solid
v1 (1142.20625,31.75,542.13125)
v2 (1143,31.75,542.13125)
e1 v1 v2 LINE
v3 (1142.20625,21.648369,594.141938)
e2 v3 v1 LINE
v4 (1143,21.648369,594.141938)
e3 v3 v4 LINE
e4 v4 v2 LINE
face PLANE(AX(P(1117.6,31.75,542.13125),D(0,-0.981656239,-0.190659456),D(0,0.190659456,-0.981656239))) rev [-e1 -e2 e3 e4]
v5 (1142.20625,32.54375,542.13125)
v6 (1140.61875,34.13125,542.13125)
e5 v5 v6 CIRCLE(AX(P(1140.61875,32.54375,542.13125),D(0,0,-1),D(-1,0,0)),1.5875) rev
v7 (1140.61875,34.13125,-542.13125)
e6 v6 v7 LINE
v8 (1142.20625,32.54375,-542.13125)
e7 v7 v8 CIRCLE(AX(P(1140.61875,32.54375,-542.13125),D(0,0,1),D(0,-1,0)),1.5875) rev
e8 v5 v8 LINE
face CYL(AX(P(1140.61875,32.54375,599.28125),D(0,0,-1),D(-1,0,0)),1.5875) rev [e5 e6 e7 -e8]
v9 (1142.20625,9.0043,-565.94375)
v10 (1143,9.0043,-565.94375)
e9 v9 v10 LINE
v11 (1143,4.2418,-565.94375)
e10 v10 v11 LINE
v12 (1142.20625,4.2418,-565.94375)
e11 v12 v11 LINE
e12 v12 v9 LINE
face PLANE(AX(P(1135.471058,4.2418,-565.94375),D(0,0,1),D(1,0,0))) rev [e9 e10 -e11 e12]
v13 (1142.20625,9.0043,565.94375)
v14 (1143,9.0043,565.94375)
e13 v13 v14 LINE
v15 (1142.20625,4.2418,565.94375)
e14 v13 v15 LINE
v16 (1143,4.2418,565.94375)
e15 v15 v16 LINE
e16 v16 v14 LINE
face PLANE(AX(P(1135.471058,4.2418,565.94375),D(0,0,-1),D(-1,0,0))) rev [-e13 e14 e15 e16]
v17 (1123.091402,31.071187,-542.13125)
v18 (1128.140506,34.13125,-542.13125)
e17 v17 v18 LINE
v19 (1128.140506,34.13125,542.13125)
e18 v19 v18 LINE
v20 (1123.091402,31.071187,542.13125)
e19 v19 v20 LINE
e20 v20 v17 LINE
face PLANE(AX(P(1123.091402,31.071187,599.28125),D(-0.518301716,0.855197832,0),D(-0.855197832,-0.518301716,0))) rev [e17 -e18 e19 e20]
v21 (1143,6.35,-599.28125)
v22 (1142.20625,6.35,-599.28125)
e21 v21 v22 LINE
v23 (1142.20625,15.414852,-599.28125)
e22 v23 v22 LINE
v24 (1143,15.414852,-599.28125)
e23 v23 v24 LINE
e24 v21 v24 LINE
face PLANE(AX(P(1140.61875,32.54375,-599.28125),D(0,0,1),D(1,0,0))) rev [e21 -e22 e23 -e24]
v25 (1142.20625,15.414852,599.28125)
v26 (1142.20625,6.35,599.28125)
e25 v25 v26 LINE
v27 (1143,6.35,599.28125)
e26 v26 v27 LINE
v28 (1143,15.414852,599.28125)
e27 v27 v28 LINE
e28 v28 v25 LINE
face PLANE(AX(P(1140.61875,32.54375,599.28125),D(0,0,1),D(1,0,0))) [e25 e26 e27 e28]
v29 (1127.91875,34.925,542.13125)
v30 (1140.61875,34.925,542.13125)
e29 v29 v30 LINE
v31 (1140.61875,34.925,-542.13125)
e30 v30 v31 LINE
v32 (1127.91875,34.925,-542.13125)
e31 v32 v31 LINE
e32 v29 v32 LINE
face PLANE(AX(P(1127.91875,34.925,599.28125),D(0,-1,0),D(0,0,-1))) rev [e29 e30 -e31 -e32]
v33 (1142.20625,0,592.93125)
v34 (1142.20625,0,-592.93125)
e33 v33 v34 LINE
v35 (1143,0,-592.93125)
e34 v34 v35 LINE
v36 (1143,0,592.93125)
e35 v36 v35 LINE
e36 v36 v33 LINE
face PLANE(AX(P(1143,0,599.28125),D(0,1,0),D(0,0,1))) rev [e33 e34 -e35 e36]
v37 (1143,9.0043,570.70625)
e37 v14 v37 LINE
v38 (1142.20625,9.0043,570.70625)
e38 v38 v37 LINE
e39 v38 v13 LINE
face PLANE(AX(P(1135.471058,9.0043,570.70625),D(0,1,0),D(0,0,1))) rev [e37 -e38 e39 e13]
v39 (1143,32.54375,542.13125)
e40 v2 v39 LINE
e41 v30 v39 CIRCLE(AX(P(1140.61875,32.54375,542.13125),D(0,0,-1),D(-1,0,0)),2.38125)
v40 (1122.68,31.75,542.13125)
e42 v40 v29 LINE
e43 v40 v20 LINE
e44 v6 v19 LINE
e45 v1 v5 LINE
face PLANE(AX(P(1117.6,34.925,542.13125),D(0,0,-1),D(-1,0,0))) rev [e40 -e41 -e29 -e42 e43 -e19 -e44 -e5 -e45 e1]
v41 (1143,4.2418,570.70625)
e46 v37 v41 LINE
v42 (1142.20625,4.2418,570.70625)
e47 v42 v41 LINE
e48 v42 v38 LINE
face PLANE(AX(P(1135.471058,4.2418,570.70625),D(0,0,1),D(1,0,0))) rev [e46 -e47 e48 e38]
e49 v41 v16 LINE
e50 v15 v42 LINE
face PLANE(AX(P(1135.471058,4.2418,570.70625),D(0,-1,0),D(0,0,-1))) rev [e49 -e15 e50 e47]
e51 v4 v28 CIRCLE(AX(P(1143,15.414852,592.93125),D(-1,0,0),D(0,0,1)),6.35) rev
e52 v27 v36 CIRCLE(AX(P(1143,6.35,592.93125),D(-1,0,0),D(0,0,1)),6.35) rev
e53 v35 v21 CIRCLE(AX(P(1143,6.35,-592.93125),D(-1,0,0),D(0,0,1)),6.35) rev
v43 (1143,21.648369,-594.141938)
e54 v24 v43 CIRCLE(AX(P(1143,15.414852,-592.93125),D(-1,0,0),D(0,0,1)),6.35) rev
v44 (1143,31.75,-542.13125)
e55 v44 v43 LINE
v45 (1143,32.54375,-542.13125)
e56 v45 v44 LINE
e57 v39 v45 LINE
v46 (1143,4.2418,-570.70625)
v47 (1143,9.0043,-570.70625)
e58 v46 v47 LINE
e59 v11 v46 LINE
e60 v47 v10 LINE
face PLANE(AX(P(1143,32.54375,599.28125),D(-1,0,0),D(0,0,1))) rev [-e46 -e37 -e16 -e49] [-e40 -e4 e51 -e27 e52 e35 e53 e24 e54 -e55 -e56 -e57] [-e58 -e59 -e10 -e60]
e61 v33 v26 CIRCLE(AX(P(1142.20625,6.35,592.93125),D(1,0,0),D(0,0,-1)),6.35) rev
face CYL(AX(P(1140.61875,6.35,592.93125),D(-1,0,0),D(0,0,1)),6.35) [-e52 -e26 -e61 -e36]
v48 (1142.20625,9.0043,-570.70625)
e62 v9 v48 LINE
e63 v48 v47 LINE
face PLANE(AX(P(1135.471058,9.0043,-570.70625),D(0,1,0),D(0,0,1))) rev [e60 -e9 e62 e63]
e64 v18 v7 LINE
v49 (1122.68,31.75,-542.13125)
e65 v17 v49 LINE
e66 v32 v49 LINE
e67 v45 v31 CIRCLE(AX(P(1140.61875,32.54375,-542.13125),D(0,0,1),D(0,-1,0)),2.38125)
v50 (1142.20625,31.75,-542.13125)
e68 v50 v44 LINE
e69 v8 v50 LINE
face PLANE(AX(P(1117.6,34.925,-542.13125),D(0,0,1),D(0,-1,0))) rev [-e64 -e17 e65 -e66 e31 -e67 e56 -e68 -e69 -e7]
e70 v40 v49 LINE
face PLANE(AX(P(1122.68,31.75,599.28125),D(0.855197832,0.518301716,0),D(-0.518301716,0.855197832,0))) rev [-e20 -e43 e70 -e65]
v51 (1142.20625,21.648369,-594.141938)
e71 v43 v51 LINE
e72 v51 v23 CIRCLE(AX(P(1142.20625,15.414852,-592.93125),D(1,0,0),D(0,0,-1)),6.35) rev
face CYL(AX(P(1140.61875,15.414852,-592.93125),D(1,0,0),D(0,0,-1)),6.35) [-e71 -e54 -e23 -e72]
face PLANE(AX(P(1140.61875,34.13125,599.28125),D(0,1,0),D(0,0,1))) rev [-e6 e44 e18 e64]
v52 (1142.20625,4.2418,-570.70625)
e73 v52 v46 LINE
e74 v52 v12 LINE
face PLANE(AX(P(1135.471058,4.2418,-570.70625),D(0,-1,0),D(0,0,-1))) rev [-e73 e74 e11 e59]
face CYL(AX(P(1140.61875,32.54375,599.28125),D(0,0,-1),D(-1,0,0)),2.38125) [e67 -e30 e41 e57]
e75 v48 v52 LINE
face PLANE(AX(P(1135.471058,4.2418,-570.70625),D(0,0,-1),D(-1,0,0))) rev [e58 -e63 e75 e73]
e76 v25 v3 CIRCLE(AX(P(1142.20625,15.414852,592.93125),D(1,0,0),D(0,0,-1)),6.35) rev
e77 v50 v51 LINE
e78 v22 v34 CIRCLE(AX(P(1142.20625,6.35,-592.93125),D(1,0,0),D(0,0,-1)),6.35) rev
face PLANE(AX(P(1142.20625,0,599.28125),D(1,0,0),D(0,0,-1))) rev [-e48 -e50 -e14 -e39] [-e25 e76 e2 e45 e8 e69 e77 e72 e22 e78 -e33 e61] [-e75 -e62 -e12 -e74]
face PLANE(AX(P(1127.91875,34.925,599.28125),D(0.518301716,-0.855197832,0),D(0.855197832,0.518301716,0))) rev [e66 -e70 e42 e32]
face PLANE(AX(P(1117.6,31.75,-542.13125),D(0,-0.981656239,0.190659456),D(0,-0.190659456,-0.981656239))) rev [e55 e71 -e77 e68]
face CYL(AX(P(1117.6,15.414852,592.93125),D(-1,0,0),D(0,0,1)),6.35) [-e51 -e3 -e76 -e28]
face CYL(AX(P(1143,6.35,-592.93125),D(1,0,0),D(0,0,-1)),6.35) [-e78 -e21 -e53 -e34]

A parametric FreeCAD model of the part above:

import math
import FreeCAD as App
import Part
import Sketcher
from FreeCAD import Vector
Q = App.Units.Quantity


def edges_at(feature, points):
    """Names of the edges that pass closest to the given points."""
    edges = feature.Shape.Edges
    near = lambda p: min(range(len(edges)), key=lambda i: edges[i].distToShape(Part.Vertex(*p))[0])
    return sorted({f"Edge{near(p) + 1}" for p in points})


def add_polygon(sketch, points):
    """Adds a closed chain of lines whose ends are joined by coincident constraints."""
    first, n = sketch.GeometryCount, len(points)
    for a, b in zip(points, points[1:] + points[:1]):
        sketch.addGeometry(Part.LineSegment(App.Vector(*a, 0), App.Vector(*b, 0)), False)
    for i in range(n):
        sketch.addConstraint(Sketcher.Constraint("Coincident", first + i, 2, first + (i + 1) % n, 1))

doc = App.newDocument("Part")
body = doc.addObject("PartDesign::Body", "Body")

# Sketch on XY plane
sketch1 = body.newObject("Sketcher::SketchObject", "Sketch")
sketch1.AttachmentSupport = (doc.getObject("XY_Plane"), [""])
sketch1.MapMode = "FlatFace"
sketch1.addGeometry(Part.LineSegment(Vector(1142.20625, 0, 0), Vector(1143, 0, 0)), False)
sketch1.addGeometry(Part.LineSegment(Vector(1143, 0, 0), Vector(1143, 32.54375, 0)), False)
sketch1.addGeometry(Part.ArcOfCircle(Part.Circle(Vector(1140.61875, 32.54375, 0), Vector(0, 0, 1), 2.38125), math.radians(0), math.radians(90)), False)
sketch1.addGeometry(Part.LineSegment(Vector(1140.61875, 34.925, 0), Vector(1127.91875, 34.925, 0)), False)
sketch1.addGeometry(Part.LineSegment(Vector(1127.91875, 34.925, 0), Vector(1122.68, 31.75, 0)), False)
sketch1.addGeometry(Part.LineSegment(Vector(1122.68, 31.75, 0), Vector(1123.091402, 31.071187, 0)), False)
sketch1.addGeometry(Part.LineSegment(Vector(1123.091402, 31.071187, 0), Vector(1128.140506, 34.13125, 0)), False)
sketch1.addGeometry(Part.LineSegment(Vector(1128.140506, 34.13125, 0), Vector(1140.61875, 34.13125, 0)), False)
sketch1.addGeometry(Part.ArcOfCircle(Part.Circle(Vector(1140.61875, 32.54375, 0), Vector(0, 0, 1), 1.5875), math.radians(0), math.radians(90)), False)
sketch1.addGeometry(Part.LineSegment(Vector(1142.20625, 32.54375, 0), Vector(1142.20625, 0, 0)), False)
sketch1.addConstraint(Sketcher.Constraint("Coincident", 0, 2, 1, 1))
sketch1.addConstraint(Sketcher.Constraint("Tangent", 1, 2, 2, 1))
sketch1.addConstraint(Sketcher.Constraint("Tangent", 2, 2, 3, 1))
sketch1.addConstraint(Sketcher.Constraint("Coincident", 3, 2, 4, 1))
sketch1.addConstraint(Sketcher.Constraint("Coincident", 4, 2, 5, 1))
sketch1.addConstraint(Sketcher.Constraint("Coincident", 5, 2, 6, 1))
sketch1.addConstraint(Sketcher.Constraint("Coincident", 6, 2, 7, 1))
sketch1.addConstraint(Sketcher.Constraint("Tangent", 7, 2, 8, 2))
sketch1.addConstraint(Sketcher.Constraint("Tangent", 8, 1, 9, 1))
sketch1.addConstraint(Sketcher.Constraint("Coincident", 9, 2, 0, 1))
sketch1.addConstraint(Sketcher.Constraint("Horizontal", 0))
sketch1.addConstraint(Sketcher.Constraint("Vertical", 1))
sketch1.addConstraint(Sketcher.Constraint("Horizontal", 3))
sketch1.addConstraint(Sketcher.Constraint("Horizontal", 7))
sketch1.addConstraint(Sketcher.Constraint("Vertical", 9))
sketch1.addConstraint(Sketcher.Constraint("Coincident", 8, 3, 2, 3))
sketch1.addConstraint(Sketcher.Constraint("PointOnObject", 0, 2, -1))
sketch1.addConstraint(Sketcher.Constraint("Perpendicular", 4, 5))
sketch1.addConstraint(Sketcher.Constraint("Perpendicular", 5, 6))
sketch1.addConstraint(Sketcher.Constraint("DistanceX", 3, 2, 3, 1, Q("0.5 in")))
sketch1.addConstraint(Sketcher.Constraint("DistanceX", -1, 1, 0, 2, Q("45 in")))
sketch1.addConstraint(Sketcher.Constraint("Radius", 2, Q("0.09375 in")))
sketch1.addConstraint(Sketcher.Constraint("Radius", 8, Q("0.0625 in")))
sketch1.addConstraint(Sketcher.Constraint("DistanceX", -1, 1, 4, 2, Q("44.2 in")))
sketch1.addConstraint(Sketcher.Constraint("DistanceY", 1, 1, 1, 2, Q("1.28125 in")))
sketch1.addConstraint(Sketcher.Constraint("DistanceY", -1, 1, 4, 2, Q("1.25 in")))
sketch1.addConstraint(Sketcher.Constraint("Distance", 5, Q("0.03125 in")))
pad1 = body.newObject("PartDesign::Pad", "Pad")
pad1.Profile = sketch1
pad1.Length = Q("47.1875 in")
pad1.Midplane = True

# Sketch on YZ plane
sketch2 = body.newObject("Sketcher::SketchObject", "Sketch001")
sketch2.AttachmentSupport = (doc.getObject("YZ_Plane"), [""])
sketch2.MapMode = "FlatFace"
sketch2.AttachmentOffset = App.Placement(Vector(0, 0, 45 * 25.4), App.Rotation())
add_polygon(sketch2, [(34.925, -599.28125), (34.925, -542.13125), (31.75, -542.13125), (20.6502, -599.28125)])  # lines 0-3
add_polygon(sketch2, [(34.925, 542.13125), (34.925, 599.28125), (20.6502, 599.28125), (31.75, 542.13125)])  # lines 4-7
sketch2.addConstraint(Sketcher.Constraint("Vertical", 0))
sketch2.addConstraint(Sketcher.Constraint("Horizontal", 1))
sketch2.addConstraint(Sketcher.Constraint("Horizontal", 3))
sketch2.addConstraint(Sketcher.Constraint("Vertical", 4))
sketch2.addConstraint(Sketcher.Constraint("Horizontal", 5))
sketch2.addConstraint(Sketcher.Constraint("Horizontal", 7))
sketch2.addConstraint(Sketcher.Constraint("Symmetric", 3, 2, 4, 2, -1))
sketch2.addConstraint(Sketcher.Constraint("Symmetric", 1, 2, 6, 2, -1))
sketch2.addConstraint(Sketcher.Constraint("Vertical", 2, 2, 5, 2))
sketch2.addConstraint(Sketcher.Constraint("DistanceY", 0, 1, 0, 2, Q("2.25 in")))
sketch2.addConstraint(Sketcher.Constraint("DistanceX", 1, 2, 1, 1, Q("0.125 in")))
sketch2.addConstraint(Sketcher.Constraint("DistanceX", 3, 1, 3, 2, Q("0.562 in")))
sketch2.addConstraint(Sketcher.Constraint("DistanceX", -1, 1, 1, 2, Q("1.25 in")))
sketch2.addConstraint(Sketcher.Constraint("DistanceY", 0, 2, -1, 1, Q("21.34375 in")))
pocket1 = body.newObject("PartDesign::Pocket", "Pocket")
pocket1.Profile = sketch2
pocket1.Length = Q("1 in")

# Sketch on XY plane
sketch3 = body.newObject("Sketcher::SketchObject", "Sketch002")
sketch3.AttachmentSupport = (doc.getObject("XY_Plane"), [""])
sketch3.MapMode = "FlatFace"
sketch3.AttachmentOffset = App.Placement(Vector(0, 0, -21.34375 * 25.4), App.Rotation())
add_polygon(sketch3, [(1122.68, 31.75), (1127.91875, 34.925), (1128.140506, 34.13125), (1123.420434, 30.528283)])  # lines 0-3
sketch3.addConstraint(Sketcher.Constraint("Perpendicular", 0, 3))
sketch3.addConstraint(Sketcher.Constraint("DistanceX", -1, 1, 3, 2, Q("44.2 in")))
sketch3.addConstraint(Sketcher.Constraint("DistanceY", -1, 1, 3, 2, Q("1.25 in")))
sketch3.addConstraint(Sketcher.Constraint("DistanceX", -1, 1, 0, 2, Q("44.40625 in")))
sketch3.addConstraint(Sketcher.Constraint("DistanceY", -1, 1, 0, 2, Q("1.375 in")))
sketch3.addConstraint(Sketcher.Constraint("DistanceY", -1, 1, 1, 2, Q("1.34375 in")))
sketch3.addConstraint(Sketcher.Constraint("Distance", 2, Q("5.938051 mm")))
sketch3.addConstraint(Sketcher.Constraint("Distance", 1, Q("0.824145 mm")))
pocket2 = body.newObject("PartDesign::Pocket", "Pocket001")
pocket2.Profile = sketch3
pocket2.Length = Q("1 in")

# Sketch on XY plane
sketch4 = body.newObject("Sketcher::SketchObject", "Sketch003")
sketch4.AttachmentSupport = (doc.getObject("XY_Plane"), [""])
sketch4.MapMode = "FlatFace"
sketch4.AttachmentOffset = App.Placement(Vector(0, 0, 21.34375 * 25.4), App.Rotation())
add_polygon(sketch4, [(1127.91875, 34.925), (1122.68, 31.75), (1124.000636, 29.570951), (1128.140506, 34.13125)])  # lines 0-3
sketch4.addConstraint(Sketcher.Constraint("Perpendicular", 0, 1))
sketch4.addConstraint(Sketcher.Constraint("DistanceX", -1, 1, 0, 2, Q("44.2 in")))
sketch4.addConstraint(Sketcher.Constraint("DistanceY", -1, 1, 0, 2, Q("1.25 in")))
sketch4.addConstraint(Sketcher.Constraint("DistanceY", -1, 1, 2, 2, Q("1.34375 in")))
sketch4.addConstraint(Sketcher.Constraint("DistanceX", -1, 1, 3, 2, Q("44.40625 in")))
sketch4.addConstraint(Sketcher.Constraint("DistanceY", -1, 1, 3, 2, Q("1.375 in")))
sketch4.addConstraint(Sketcher.Constraint("DistanceY", 1, 2, 2, 2, Q("4.560299 mm")))
sketch4.addConstraint(Sketcher.Constraint("DistanceX", 1, 2, 2, 2, Q("4.13987 mm")))
pocket3 = body.newObject("PartDesign::Pocket", "Pocket002")
pocket3.Profile = sketch4
pocket3.Length = Q("1 in")
pocket3.Reversed = True

# Sketch on YZ plane
sketch5 = body.newObject("Sketcher::SketchObject", "Sketch004")
sketch5.AttachmentSupport = (doc.getObject("YZ_Plane"), [""])
sketch5.MapMode = "FlatFace"
sketch5.AttachmentOffset = App.Placement(Vector(0, 0, 45 * 25.4), App.Rotation())
add_polygon(sketch5, [(9.0043, -565.94375), (4.2418, -565.94375), (4.2418, -570.70625), (9.0043, -570.70625)])  # lines 0-3
add_polygon(sketch5, [(9.0043, 570.70625), (4.2418, 570.70625), (4.2418, 565.94375), (9.0043, 565.94375)])  # lines 4-7
sketch5.addConstraint(Sketcher.Constraint("Horizontal", 0))
sketch5.addConstraint(Sketcher.Constraint("Vertical", 1))
sketch5.addConstraint(Sketcher.Constraint("Horizontal", 2))
sketch5.addConstraint(Sketcher.Constraint("Vertical", 3))
sketch5.addConstraint(Sketcher.Constraint("Horizontal", 4))
sketch5.addConstraint(Sketcher.Constraint("Vertical", 5))
sketch5.addConstraint(Sketcher.Constraint("Horizontal", 6))
sketch5.addConstraint(Sketcher.Constraint("Vertical", 7))
sketch5.addConstraint(Sketcher.Constraint("Symmetric", 1, 2, 4, 2, -1))
sketch5.addConstraint(Sketcher.Constraint("Symmetric", 3, 2, 6, 2, -1))
sketch5.addConstraint(Sketcher.Constraint("Equal", 6, 1))
sketch5.addConstraint(Sketcher.Constraint("DistanceX", 0, 2, 0, 1, Q("0.1875 in")))
sketch5.addConstraint(Sketcher.Constraint("DistanceY", 0, 2, 4, 2, Q("44.75 in")))
sketch5.addConstraint(Sketcher.Constraint("DistanceX", -1, 1, 0, 2, Q("0.167 in")))
pocket4 = body.newObject("PartDesign::Pocket", "Pocket003")
pocket4.Profile = sketch5
pocket4.Length = Q("0.03125 in")
doc.recompute()

fillet = body.newObject("PartDesign::Fillet", "Fillet")
fillet.Base = (pocket4, edges_at(pocket4, [
    (1142.603, 20.65, -599.281),
    (1142.603, 0, 599.281),
    (1142.603, 20.65, 599.281),
    (1142.603, 0, -599.281),
]))
fillet.Radius = Q("0.25 in")

doc.recompute()
